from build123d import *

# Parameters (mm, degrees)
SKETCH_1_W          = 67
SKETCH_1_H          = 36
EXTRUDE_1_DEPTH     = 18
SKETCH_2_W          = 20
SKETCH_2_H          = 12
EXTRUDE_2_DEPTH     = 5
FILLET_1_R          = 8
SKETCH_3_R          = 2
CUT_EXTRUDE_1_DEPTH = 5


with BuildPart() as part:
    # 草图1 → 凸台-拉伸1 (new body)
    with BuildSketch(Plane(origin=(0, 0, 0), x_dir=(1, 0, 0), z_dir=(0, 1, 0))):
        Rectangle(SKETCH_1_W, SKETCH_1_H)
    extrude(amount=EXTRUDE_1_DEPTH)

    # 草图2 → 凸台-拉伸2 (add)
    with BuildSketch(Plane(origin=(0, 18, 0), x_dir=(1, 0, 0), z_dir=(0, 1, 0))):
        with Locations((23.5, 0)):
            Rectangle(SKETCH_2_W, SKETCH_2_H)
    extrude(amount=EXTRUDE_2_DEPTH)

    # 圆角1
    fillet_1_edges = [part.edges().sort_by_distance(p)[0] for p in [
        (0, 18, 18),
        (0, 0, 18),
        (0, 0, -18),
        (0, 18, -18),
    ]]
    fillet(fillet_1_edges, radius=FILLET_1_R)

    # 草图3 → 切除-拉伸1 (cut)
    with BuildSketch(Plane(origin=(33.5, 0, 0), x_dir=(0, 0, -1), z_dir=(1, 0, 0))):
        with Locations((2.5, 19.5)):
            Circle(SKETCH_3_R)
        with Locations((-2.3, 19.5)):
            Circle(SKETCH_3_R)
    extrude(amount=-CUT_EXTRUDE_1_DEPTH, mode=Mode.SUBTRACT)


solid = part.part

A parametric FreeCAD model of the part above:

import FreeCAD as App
import Part
import Sketcher
from FreeCAD import Vector


def edges_at(feature, points):
    """Names of the edges that pass closest to the given points."""
    edges = feature.Shape.Edges
    near = lambda p: min(range(len(edges)), key=lambda i: edges[i].distToShape(Part.Vertex(*p))[0])
    return sorted({f"Edge{near(p) + 1}" for p in points})


def add_polygon(sketch, points):
    """Adds a closed chain of lines whose ends are joined by coincident constraints."""
    first, n = sketch.GeometryCount, len(points)
    for a, b in zip(points, points[1:] + points[:1]):
        sketch.addGeometry(Part.LineSegment(App.Vector(*a, 0), App.Vector(*b, 0)), False)
    for i in range(n):
        sketch.addConstraint(Sketcher.Constraint("Coincident", first + i, 2, first + (i + 1) % n, 1))

doc = App.newDocument("Part")
body = doc.addObject("PartDesign::Body", "Body")

sketch1 = body.newObject("Sketcher::SketchObject", "Sketch")
sketch1.AttachmentSupport = (doc.getObject("XZ_Plane"), [""])
sketch1.MapMode = "FlatFace"
add_polygon(sketch1, [(-34, -18), (-34, 18), (34, 18), (34, -18)])
sketch1.addConstraint(Sketcher.Constraint("Vertical", 0))
sketch1.addConstraint(Sketcher.Constraint("Horizontal", 1))
sketch1.addConstraint(Sketcher.Constraint("Vertical", 2))
sketch1.addConstraint(Sketcher.Constraint("Horizontal", 3))
sketch1.addConstraint(Sketcher.Constraint("Symmetric", 0, 2, 2, 2, -1, 1))
sketch1.addConstraint(Sketcher.Constraint("DistanceX", 1, 1, 1, 2, 67.0))
sketch1.addConstraint(Sketcher.Constraint("DistanceY", 0, 1, 0, 2, 36.0))
pad1 = body.newObject("PartDesign::Pad", "Pad")
pad1.Profile = sketch1
pad1.Length = 18
pad1.Reversed = True

sketch2 = body.newObject("Sketcher::SketchObject", "Sketch001")
sketch2.AttachmentSupport = (doc.getObject("XZ_Plane"), [""])
sketch2.MapMode = "FlatFace"
sketch2.AttachmentOffset = App.Placement(Vector(0, 0, -18), App.Rotation())
add_polygon(sketch2, [(14, -6), (14, 6), (34, 6), (34, -6)])
sketch2.addConstraint(Sketcher.Constraint("Vertical", 0))
sketch2.addConstraint(Sketcher.Constraint("Horizontal", 1))
sketch2.addConstraint(Sketcher.Constraint("Vertical", 2))
sketch2.addConstraint(Sketcher.Constraint("Horizontal", 3))
sketch2.addConstraint(Sketcher.Constraint("DistanceX", 1, 1, 1, 2, 20.0))
sketch2.addConstraint(Sketcher.Constraint("DistanceY", 0, 1, 0, 2, 12.0))
sketch2.addConstraint(Sketcher.Constraint("DistanceY", -1, 1, 0, 2, 6.0))
sketch2.addConstraint(Sketcher.Constraint("DistanceX", -1, 1, 0, 2, 13.5))
pad2 = body.newObject("PartDesign::Pad", "Pad001")
pad2.Profile = sketch2
pad2.Length = 5
pad2.Reversed = True
doc.recompute()

fillet = body.newObject("PartDesign::Fillet", "Fillet")
fillet.Base = (pad2, edges_at(pad2, [
    (0, 18, 18),
    (0, 0, 18),
    (0, 0, -18),
    (0, 18, -18),
]))
fillet.Radius = 8

sketch3 = body.newObject("Sketcher::SketchObject", "Sketch002")
sketch3.AttachmentSupport = (doc.getObject("YZ_Plane"), [""])
sketch3.MapMode = "FlatFace"
sketch3.AttachmentOffset = App.Placement(Vector(0, 0, 33.5), App.Rotation())
sketch3.addGeometry(Part.Circle(Vector(19.5, -2.5, 0), Vector(0, 0, 1), 2), False)
sketch3.addGeometry(Part.Circle(Vector(19.5, 2.3, 0), Vector(0, 0, 1), 2), False)
sketch3.addConstraint(Sketcher.Constraint("Equal", 0, 1))
sketch3.addConstraint(Sketcher.Constraint("Vertical", 0, 3, 1, 3))
sketch3.addConstraint(Sketcher.Constraint("Diameter", 0, 4.0))
sketch3.addConstraint(Sketcher.Constraint("DistanceX", -1, 1, 0, 3, 19.5))
sketch3.addConstraint(Sketcher.Constraint("DistanceY", 0, 3, -1, 1, 2.5))
sketch3.addConstraint(Sketcher.Constraint("DistanceY", -1, 1, 1, 3, 2.3))
pocket1 = body.newObject("PartDesign::Pocket", "Pocket")
pocket1.Profile = sketch3
pocket1.Length = 5

doc.recompute()
